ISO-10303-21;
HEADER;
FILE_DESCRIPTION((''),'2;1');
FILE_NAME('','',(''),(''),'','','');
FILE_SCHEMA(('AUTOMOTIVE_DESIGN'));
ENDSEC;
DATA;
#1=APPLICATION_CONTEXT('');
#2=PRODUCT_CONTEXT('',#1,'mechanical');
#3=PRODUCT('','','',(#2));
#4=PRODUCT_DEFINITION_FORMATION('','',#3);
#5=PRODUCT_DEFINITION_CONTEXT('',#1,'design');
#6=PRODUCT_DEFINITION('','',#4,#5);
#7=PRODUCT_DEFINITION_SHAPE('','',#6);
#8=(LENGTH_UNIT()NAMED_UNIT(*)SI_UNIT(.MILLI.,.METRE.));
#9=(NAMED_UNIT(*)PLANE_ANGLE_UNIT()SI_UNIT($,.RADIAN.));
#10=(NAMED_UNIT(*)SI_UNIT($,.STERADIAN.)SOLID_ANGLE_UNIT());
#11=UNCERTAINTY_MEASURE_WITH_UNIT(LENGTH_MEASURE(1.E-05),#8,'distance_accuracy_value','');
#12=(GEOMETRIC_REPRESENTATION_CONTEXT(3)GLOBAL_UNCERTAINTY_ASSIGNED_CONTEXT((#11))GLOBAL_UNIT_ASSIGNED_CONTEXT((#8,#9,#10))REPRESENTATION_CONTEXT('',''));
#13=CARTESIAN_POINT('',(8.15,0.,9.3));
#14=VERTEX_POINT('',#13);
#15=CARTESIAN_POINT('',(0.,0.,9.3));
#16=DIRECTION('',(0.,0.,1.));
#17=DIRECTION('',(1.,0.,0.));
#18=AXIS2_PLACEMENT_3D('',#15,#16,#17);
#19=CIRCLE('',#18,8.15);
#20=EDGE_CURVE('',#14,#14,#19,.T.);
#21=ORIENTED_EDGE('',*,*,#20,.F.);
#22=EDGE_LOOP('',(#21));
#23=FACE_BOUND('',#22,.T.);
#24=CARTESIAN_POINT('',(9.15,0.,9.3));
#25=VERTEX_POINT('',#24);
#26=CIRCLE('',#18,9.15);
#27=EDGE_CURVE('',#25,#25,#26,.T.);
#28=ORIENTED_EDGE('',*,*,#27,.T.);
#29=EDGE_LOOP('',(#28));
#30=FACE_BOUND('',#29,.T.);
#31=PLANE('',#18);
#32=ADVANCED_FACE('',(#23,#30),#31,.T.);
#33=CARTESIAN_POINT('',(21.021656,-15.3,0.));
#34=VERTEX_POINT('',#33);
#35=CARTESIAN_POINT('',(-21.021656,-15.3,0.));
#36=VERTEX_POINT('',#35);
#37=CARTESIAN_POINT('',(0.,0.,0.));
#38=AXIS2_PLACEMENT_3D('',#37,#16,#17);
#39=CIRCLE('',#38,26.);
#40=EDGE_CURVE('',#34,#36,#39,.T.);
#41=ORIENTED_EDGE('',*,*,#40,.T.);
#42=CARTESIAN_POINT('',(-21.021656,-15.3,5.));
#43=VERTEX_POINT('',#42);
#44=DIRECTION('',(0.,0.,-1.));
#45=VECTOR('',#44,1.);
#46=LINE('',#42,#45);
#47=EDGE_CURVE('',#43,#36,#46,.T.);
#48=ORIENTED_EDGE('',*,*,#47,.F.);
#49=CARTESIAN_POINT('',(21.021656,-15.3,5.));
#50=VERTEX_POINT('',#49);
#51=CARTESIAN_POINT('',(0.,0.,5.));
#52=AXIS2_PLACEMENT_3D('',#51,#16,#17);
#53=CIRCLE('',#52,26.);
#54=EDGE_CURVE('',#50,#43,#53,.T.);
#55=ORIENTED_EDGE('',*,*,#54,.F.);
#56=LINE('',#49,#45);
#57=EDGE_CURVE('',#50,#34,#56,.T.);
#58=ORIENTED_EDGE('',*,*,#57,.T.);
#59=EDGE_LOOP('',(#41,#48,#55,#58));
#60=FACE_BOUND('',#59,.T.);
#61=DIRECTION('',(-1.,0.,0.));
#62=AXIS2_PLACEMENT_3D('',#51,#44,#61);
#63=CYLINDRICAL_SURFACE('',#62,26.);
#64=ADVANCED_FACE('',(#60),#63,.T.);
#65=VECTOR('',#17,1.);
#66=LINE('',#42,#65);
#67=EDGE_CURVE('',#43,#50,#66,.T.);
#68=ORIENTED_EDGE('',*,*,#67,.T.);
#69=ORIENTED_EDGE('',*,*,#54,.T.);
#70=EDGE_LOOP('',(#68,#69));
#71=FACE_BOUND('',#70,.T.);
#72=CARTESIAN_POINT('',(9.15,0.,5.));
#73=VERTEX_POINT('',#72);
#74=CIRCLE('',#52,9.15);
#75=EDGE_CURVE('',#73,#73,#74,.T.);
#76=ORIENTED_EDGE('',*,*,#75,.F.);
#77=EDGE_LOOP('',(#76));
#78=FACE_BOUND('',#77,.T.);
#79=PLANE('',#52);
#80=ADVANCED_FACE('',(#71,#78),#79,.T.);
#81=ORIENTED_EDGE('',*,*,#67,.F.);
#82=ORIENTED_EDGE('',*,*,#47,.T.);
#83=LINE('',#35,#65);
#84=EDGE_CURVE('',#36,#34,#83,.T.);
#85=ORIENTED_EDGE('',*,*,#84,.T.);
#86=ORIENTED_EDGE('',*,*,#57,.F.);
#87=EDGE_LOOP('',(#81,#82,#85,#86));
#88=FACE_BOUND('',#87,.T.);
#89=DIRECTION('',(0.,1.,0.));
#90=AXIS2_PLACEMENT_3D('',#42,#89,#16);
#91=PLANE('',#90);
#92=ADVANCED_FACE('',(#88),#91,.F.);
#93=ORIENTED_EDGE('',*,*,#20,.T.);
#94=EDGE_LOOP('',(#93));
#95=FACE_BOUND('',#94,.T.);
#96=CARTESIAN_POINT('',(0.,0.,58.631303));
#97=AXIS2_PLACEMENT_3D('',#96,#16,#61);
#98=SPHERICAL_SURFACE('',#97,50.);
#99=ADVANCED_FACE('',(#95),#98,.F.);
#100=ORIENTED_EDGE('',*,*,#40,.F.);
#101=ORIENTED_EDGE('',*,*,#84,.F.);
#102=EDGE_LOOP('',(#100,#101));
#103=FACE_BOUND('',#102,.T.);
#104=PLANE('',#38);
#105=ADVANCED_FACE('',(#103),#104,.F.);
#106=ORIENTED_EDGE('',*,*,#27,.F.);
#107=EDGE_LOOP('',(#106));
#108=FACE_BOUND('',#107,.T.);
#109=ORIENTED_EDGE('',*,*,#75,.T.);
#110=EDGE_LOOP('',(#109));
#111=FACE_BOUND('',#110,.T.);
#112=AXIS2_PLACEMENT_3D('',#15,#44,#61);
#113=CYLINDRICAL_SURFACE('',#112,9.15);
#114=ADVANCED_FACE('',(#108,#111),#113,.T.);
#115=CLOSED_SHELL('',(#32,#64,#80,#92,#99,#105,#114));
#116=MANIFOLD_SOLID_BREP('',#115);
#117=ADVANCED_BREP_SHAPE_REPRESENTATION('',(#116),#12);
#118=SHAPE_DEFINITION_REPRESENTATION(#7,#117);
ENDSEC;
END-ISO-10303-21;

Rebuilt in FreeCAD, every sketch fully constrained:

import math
import FreeCAD as App
import Part
import Sketcher
from FreeCAD import Vector
Q = App.Units.Quantity

doc = App.newDocument("Part")
body = doc.addObject("PartDesign::Body", "Body")

# Sketch on XY plane
sketch1 = body.newObject("Sketcher::SketchObject", "Sketch")
sketch1.AttachmentSupport = (doc.getObject("XY_Plane"), [""])
sketch1.MapMode = "FlatFace"
sketch1.addGeometry(Part.LineSegment(Vector(-21, -15, 0), Vector(21, -15, 0)), False)
sketch1.addGeometry(Part.ArcOfCircle(Part.Circle(Vector(0, 0, 0), Vector(0, 0, 1), 26), math.radians(-36), math.radians(216)), False)
sketch1.addConstraint(Sketcher.Constraint("Coincident", 0, 1, 1, 2))
sketch1.addConstraint(Sketcher.Constraint("Coincident", 1, 1, 0, 2))
sketch1.addConstraint(Sketcher.Constraint("Horizontal", 0))
sketch1.addConstraint(Sketcher.Constraint("Coincident", 1, 3, -1, 1))
sketch1.addConstraint(Sketcher.Constraint("Radius", 1, Q("26 mm")))
sketch1.addConstraint(Sketcher.Constraint("DistanceY", 0, 1, -1, 1, Q("15.3 mm")))
pad1 = body.newObject("PartDesign::Pad", "Pad")
pad1.Profile = sketch1
pad1.Length = 5

# Sketch on XY plane
sketch2 = body.newObject("Sketcher::SketchObject", "Sketch001")
sketch2.AttachmentSupport = (doc.getObject("XY_Plane"), [""])
sketch2.MapMode = "FlatFace"
sketch2.AttachmentOffset = App.Placement(Vector(0, 0, 5), App.Rotation())
sketch2.addGeometry(Part.Circle(Vector(0, 0, 0), Vector(0, 0, 1), 9), False)
sketch2.addConstraint(Sketcher.Constraint("Coincident", 0, 3, -1, 1))
sketch2.addConstraint(Sketcher.Constraint("Diameter", 0, Q("18.3 mm")))
pad2 = body.newObject("PartDesign::Pad", "Pad001")
pad2.Profile = sketch2
pad2.Length = 4.3

# Sketch on XZ plane
sketch3 = body.newObject("Sketcher::SketchObject", "Sketch002")
sketch3.AttachmentSupport = (doc.getObject("XZ_Plane"), [""])
sketch3.MapMode = "FlatFace"
sketch3.addGeometry(Part.LineSegment(Vector(0, 9.3, 0), Vector(0, 8.6, 0)), False)
sketch3.addGeometry(Part.ArcOfCircle(Part.Circle(Vector(0, 58.6, 0), Vector(0, 0, 1), 50), math.radians(-90), math.radians(-80.62)), False)
sketch3.addGeometry(Part.LineSegment(Vector(8.2, 9.3, 0), Vector(0, 9.3, 0)), False)
sketch3.addConstraint(Sketcher.Constraint("Coincident", 0, 2, 1, 1))
sketch3.addConstraint(Sketcher.Constraint("Coincident", 1, 2, 2, 1))
sketch3.addConstraint(Sketcher.Constraint("Coincident", 2, 2, 0, 1))
sketch3.addConstraint(Sketcher.Constraint("Vertical", 0))
sketch3.addConstraint(Sketcher.Constraint("Horizontal", 2))
sketch3.addConstraint(Sketcher.Constraint("PointOnObject", 1, 3, -2))
sketch3.addConstraint(Sketcher.Constraint("PointOnObject", 0, 2, -2))
sketch3.addConstraint(Sketcher.Constraint("Radius", 1, Q("50 mm")))
sketch3.addConstraint(Sketcher.Constraint("DistanceX", 2, 2, 2, 1, Q("8.15 mm")))
sketch3.addConstraint(Sketcher.Constraint("DistanceY", -1, 1, 1, 2, Q("9.3 mm")))
groove = body.newObject("PartDesign::Groove", "Groove")
groove.Profile = sketch3
groove.ReferenceAxis = (sketch3, ["V_Axis"])
groove.Angle = 360

doc.recompute()
